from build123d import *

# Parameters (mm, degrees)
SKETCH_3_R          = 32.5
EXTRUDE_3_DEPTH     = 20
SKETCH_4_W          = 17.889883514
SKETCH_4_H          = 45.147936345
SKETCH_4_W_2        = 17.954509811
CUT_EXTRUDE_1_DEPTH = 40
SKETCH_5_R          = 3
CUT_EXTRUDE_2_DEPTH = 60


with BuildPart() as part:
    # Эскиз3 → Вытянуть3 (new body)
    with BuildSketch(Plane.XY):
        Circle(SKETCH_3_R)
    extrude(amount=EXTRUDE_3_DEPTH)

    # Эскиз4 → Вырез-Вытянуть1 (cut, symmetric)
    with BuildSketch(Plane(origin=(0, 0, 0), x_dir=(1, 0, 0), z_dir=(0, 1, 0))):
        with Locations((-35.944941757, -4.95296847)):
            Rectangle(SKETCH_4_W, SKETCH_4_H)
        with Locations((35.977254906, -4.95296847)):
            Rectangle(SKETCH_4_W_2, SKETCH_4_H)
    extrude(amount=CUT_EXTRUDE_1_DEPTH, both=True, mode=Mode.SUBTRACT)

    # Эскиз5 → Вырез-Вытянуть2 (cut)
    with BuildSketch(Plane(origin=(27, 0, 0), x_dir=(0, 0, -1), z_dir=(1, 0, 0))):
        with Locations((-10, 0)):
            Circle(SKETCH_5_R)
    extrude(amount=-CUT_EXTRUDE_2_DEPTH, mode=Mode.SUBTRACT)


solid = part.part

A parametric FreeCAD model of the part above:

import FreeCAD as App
import Part
import Sketcher
from FreeCAD import Vector
Q = App.Units.Quantity

doc = App.newDocument("Part")
body = doc.addObject("PartDesign::Body", "Body")

sketch1 = doc.addObject("Sketcher::SketchObject", "Sketch")
body.addObject(sketch1)
sketch1.AttachmentSupport = (doc.XY_Plane, [""])
sketch1.MapMode = "FlatFace"
sketch1.addGeometry(Part.Circle(Vector(0, 0, 0), Vector(0, 0, 1), 32.5), False)
sketch1.addConstraint(Sketcher.Constraint("Coincident", 0, 3, -1, 1))
sketch1.addConstraint(Sketcher.Constraint("Diameter", 0, Q("65 mm")))
pad1 = doc.addObject("PartDesign::Pad", "Pad")
body.addObject(pad1)
pad1.Profile = sketch1
pad1.Length = 20

sketch2 = doc.addObject("Sketcher::SketchObject", "Sketch001")
body.addObject(sketch2)
sketch2.AttachmentSupport = (doc.XZ_Plane, [""])
sketch2.MapMode = "FlatFace"
sketch2.addGeometry(Part.LineSegment(Vector(-44.889884, -17.621, 0), Vector(-44.889884, 27.526937, 0)), False)
sketch2.addGeometry(Part.LineSegment(Vector(-44.889884, 27.526937, 0), Vector(-27, 27.526937, 0)), False)
sketch2.addGeometry(Part.LineSegment(Vector(-27, 27.526937, 0), Vector(-27, -17.621, 0)), False)
sketch2.addGeometry(Part.LineSegment(Vector(-27, -17.621, 0), Vector(-44.889884, -17.621, 0)), False)
sketch2.addGeometry(Part.LineSegment(Vector(27, -17.621, 0), Vector(27, 27.526937, 0)), False)
sketch2.addGeometry(Part.LineSegment(Vector(27, 27.526937, 0), Vector(44.95451, 27.526937, 0)), False)
sketch2.addGeometry(Part.LineSegment(Vector(44.95451, 27.526937, 0), Vector(44.95451, -17.621, 0)), False)
sketch2.addGeometry(Part.LineSegment(Vector(44.95451, -17.621, 0), Vector(27, -17.621, 0)), False)
sketch2.addConstraint(Sketcher.Constraint("Coincident", 0, 2, 1, 1))
sketch2.addConstraint(Sketcher.Constraint("Coincident", 1, 2, 2, 1))
sketch2.addConstraint(Sketcher.Constraint("Coincident", 2, 2, 3, 1))
sketch2.addConstraint(Sketcher.Constraint("Coincident", 3, 2, 0, 1))
sketch2.addConstraint(Sketcher.Constraint("Coincident", 4, 2, 5, 1))
sketch2.addConstraint(Sketcher.Constraint("Coincident", 5, 2, 6, 1))
sketch2.addConstraint(Sketcher.Constraint("Coincident", 6, 2, 7, 1))
sketch2.addConstraint(Sketcher.Constraint("Coincident", 7, 2, 4, 1))
sketch2.addConstraint(Sketcher.Constraint("Vertical", 0))
sketch2.addConstraint(Sketcher.Constraint("Horizontal", 1))
sketch2.addConstraint(Sketcher.Constraint("Vertical", 2))
sketch2.addConstraint(Sketcher.Constraint("Horizontal", 3))
sketch2.addConstraint(Sketcher.Constraint("Vertical", 4))
sketch2.addConstraint(Sketcher.Constraint("Horizontal", 5))
sketch2.addConstraint(Sketcher.Constraint("Vertical", 6))
sketch2.addConstraint(Sketcher.Constraint("Horizontal", 7))
sketch2.addConstraint(Sketcher.Constraint("Symmetric", 1, 2, 4, 2, -2))
sketch2.addConstraint(Sketcher.Constraint("Horizontal", 3, 2, 6, 2))
sketch2.addConstraint(Sketcher.Constraint("DistanceX", 1, 2, -1, 1, Q("27 mm")))
sketch2.addConstraint(Sketcher.Constraint("DistanceY", 2, 2, -1, 1, Q("17.621 mm")))
sketch2.addConstraint(Sketcher.Constraint("DistanceX", 5, 1, 5, 2, Q("17.95451 mm")))
sketch2.addConstraint(Sketcher.Constraint("DistanceX", 1, 1, 1, 2, Q("17.889884 mm")))
sketch2.addConstraint(Sketcher.Constraint("DistanceY", 0, 1, 0, 2, Q("45.147936 mm")))
pocket1 = doc.addObject("PartDesign::Pocket", "Pocket")
body.addObject(pocket1)
pocket1.Profile = sketch2
pocket1.Length = 80
pocket1.Midplane = True

sketch3 = doc.addObject("Sketcher::SketchObject", "Sketch002")
body.addObject(sketch3)
sketch3.AttachmentSupport = (doc.YZ_Plane, [""])
sketch3.MapMode = "FlatFace"
sketch3.AttachmentOffset = App.Placement(Vector(0, 0, 27), App.Rotation())
sketch3.addGeometry(Part.Circle(Vector(0, 10, 0), Vector(0, 0, 1), 3), False)
sketch3.addConstraint(Sketcher.Constraint("PointOnObject", 0, 3, -2))
sketch3.addConstraint(Sketcher.Constraint("Diameter", 0, Q("6 mm")))
sketch3.addConstraint(Sketcher.Constraint("DistanceY", -1, 1, 0, 3, Q("10 mm")))
pocket2 = doc.addObject("PartDesign::Pocket", "Pocket001")
body.addObject(pocket2)
pocket2.Profile = sketch3
pocket2.Length = 60

doc.recompute()
